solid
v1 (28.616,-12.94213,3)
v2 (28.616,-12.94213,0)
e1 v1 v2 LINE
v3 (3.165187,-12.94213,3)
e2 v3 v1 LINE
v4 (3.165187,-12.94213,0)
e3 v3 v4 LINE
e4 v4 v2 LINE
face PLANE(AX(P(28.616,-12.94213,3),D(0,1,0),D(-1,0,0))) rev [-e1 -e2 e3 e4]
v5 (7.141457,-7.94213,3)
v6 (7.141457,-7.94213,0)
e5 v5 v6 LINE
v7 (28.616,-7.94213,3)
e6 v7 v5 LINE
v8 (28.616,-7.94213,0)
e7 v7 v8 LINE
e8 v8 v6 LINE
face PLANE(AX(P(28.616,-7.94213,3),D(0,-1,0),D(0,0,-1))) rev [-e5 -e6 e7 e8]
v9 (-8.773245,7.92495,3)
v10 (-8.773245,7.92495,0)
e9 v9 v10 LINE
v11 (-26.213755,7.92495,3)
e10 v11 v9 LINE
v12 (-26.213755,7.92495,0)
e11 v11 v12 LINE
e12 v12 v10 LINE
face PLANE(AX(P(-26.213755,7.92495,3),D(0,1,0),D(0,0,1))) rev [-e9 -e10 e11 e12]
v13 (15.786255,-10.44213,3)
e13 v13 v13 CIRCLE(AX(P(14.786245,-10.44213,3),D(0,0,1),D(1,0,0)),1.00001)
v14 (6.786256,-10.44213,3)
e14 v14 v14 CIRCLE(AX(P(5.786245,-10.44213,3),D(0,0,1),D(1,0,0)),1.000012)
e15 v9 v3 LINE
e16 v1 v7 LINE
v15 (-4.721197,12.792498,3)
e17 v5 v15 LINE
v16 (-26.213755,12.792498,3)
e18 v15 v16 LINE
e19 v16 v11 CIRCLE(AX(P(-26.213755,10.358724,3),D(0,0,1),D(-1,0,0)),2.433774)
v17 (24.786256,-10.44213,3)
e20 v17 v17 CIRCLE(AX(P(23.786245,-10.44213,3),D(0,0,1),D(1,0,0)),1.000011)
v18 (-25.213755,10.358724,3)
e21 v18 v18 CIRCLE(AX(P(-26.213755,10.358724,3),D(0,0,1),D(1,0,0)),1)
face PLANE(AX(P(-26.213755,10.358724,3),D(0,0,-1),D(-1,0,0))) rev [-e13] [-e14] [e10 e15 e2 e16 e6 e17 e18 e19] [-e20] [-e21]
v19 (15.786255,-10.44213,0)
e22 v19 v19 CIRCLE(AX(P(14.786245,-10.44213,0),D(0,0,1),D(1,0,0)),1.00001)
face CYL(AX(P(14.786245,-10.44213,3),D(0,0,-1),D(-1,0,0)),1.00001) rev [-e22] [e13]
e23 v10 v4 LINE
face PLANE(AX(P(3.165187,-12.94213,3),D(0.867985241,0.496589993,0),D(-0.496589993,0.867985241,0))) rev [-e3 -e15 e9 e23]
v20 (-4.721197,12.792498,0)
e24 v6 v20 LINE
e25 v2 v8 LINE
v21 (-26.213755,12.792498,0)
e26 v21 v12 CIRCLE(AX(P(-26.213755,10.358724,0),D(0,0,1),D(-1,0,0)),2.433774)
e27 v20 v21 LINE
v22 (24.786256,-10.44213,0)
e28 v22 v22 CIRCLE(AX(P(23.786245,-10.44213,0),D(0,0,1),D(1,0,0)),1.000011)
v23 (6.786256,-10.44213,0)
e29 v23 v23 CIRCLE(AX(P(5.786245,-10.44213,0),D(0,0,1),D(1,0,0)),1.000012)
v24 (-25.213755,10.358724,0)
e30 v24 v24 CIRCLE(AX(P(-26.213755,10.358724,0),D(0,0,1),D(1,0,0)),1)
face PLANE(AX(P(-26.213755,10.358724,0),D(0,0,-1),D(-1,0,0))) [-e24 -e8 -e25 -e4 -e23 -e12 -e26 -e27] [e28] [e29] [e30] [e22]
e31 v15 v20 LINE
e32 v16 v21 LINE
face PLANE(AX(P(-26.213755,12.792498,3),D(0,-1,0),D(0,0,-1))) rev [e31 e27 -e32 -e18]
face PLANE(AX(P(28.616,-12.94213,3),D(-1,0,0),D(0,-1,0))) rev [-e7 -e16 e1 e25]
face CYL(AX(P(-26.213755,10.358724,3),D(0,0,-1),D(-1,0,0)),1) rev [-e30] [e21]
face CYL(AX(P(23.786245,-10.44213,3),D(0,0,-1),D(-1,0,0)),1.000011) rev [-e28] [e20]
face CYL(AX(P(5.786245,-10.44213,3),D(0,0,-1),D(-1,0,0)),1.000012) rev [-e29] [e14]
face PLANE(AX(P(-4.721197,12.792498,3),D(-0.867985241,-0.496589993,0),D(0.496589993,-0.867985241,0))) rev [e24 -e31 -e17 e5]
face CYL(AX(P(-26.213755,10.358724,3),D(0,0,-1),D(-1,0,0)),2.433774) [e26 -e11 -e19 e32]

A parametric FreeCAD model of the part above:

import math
import FreeCAD as App
import Part
import Sketcher

V = App.Vector

doc = App.newDocument("Part")
body = doc.addObject("PartDesign::Body", "Body")

sketch1 = body.newObject("Sketcher::SketchObject", "Sketch")
sketch1.AttachmentSupport = (doc.getObject("XY_Plane"), [""])
sketch1.MapMode = "FlatFace"
sketch1.addGeometry(Part.LineSegment(V(28.6, -12.9, 0), V(28.6, -7.9, 0)), False)
sketch1.addGeometry(Part.LineSegment(V(28.6, -7.9, 0), V(7.1, -7.9, 0)), False)
sketch1.addGeometry(Part.LineSegment(V(7.1, -7.9, 0), V(-4.7, 12.8, 0)), False)
sketch1.addGeometry(Part.LineSegment(V(-4.7, 12.8, 0), V(-26.2, 12.8, 0)), False)
sketch1.addGeometry(Part.ArcOfCircle(Part.Circle(V(-26.2, 10.4, 0), V(0, 0, 1), 2.4), math.radians(90), math.radians(270)), False)
sketch1.addGeometry(Part.LineSegment(V(-26.2, 7.9, 0), V(-8.8, 7.9, 0)), False)
sketch1.addGeometry(Part.LineSegment(V(-8.8, 7.9, 0), V(3.2, -12.9, 0)), False)
sketch1.addGeometry(Part.LineSegment(V(3.2, -12.9, 0), V(28.6, -12.9, 0)), False)
sketch1.addGeometry(Part.Circle(V(5.8, -10.4, 0), V(0, 0, 1), 1), False)
sketch1.addGeometry(Part.Circle(V(14.8, -10.4, 0), V(0, 0, 1), 1), False)
sketch1.addGeometry(Part.Circle(V(23.8, -10.4, 0), V(0, 0, 1), 1), False)
sketch1.addGeometry(Part.Circle(V(-26.2, 10.4, 0), V(0, 0, 1), 1), False)
sketch1.addConstraint(Sketcher.Constraint("Coincident", 0, 2, 1, 1))
sketch1.addConstraint(Sketcher.Constraint("Coincident", 1, 2, 2, 1))
sketch1.addConstraint(Sketcher.Constraint("Coincident", 2, 2, 3, 1))
sketch1.addConstraint(Sketcher.Constraint("Tangent", 3, 2, 4, 1))
sketch1.addConstraint(Sketcher.Constraint("Tangent", 4, 2, 5, 1))
sketch1.addConstraint(Sketcher.Constraint("Coincident", 5, 2, 6, 1))
sketch1.addConstraint(Sketcher.Constraint("Coincident", 6, 2, 7, 1))
sketch1.addConstraint(Sketcher.Constraint("Coincident", 7, 2, 0, 1))
sketch1.addConstraint(Sketcher.Constraint("Vertical", 0))
sketch1.addConstraint(Sketcher.Constraint("Horizontal", 1))
sketch1.addConstraint(Sketcher.Constraint("Horizontal", 3))
sketch1.addConstraint(Sketcher.Constraint("Horizontal", 5))
sketch1.addConstraint(Sketcher.Constraint("Horizontal", 7))
sketch1.addConstraint(Sketcher.Constraint("Coincident", 11, 3, 4, 3))
sketch1.addConstraint(Sketcher.Constraint("Equal", 8, 9))
sketch1.addConstraint(Sketcher.Constraint("Equal", 9, 10))
sketch1.addConstraint(Sketcher.Constraint("Parallel", 2, 6))
sketch1.addConstraint(Sketcher.Constraint("Horizontal", 8, 3, 9, 3))
sketch1.addConstraint(Sketcher.Constraint("Horizontal", 9, 3, 10, 3))
sketch1.addConstraint(Sketcher.Constraint("Diameter", 11, 2.0))
sketch1.addConstraint(Sketcher.Constraint("DistanceY", 0, 1, 0, 2, 5.0))
sketch1.addConstraint(Sketcher.Constraint("DistanceX", 4, 3, 8, 3, 32.0))
sketch1.addConstraint(Sketcher.Constraint("DistanceX", 8, 3, 9, 3, 9.0))
sketch1.addConstraint(Sketcher.Constraint("DistanceX", 9, 3, 10, 3, 9.0))
sketch1.addConstraint(Sketcher.Constraint("DistanceY", 10, 3, 0, 2, 2.5))
sketch1.addConstraint(Sketcher.Constraint("Diameter", 9, 2.00002))
sketch1.addConstraint(Sketcher.Constraint("DistanceX", -1, 1, 0, 2, 28.616))
sketch1.addConstraint(Sketcher.Constraint("Radius", 4, 2.433774))
sketch1.addConstraint(Sketcher.Constraint("DistanceX", 3, 2, 3, 1, 21.492558))
sketch1.addConstraint(Sketcher.Constraint("DistanceX", 5, 1, 5, 2, 17.44051))
sketch1.addConstraint(Sketcher.Constraint("DistanceX", 1, 2, 1, 1, 21.474544))
sketch1.addConstraint(Sketcher.Constraint("DistanceY", 8, 3, -1, 1, 10.44213))
sketch1.addConstraint(Sketcher.Constraint("DistanceY", -1, 1, 4, 2, 7.92495))
sketch1.addConstraint(Sketcher.Constraint("DistanceX", 8, 3, 1, 2, 1.355212))
pad1 = body.newObject("PartDesign::Pad", "Pad")
pad1.Profile = sketch1
pad1.Length = 3

doc.recompute()
